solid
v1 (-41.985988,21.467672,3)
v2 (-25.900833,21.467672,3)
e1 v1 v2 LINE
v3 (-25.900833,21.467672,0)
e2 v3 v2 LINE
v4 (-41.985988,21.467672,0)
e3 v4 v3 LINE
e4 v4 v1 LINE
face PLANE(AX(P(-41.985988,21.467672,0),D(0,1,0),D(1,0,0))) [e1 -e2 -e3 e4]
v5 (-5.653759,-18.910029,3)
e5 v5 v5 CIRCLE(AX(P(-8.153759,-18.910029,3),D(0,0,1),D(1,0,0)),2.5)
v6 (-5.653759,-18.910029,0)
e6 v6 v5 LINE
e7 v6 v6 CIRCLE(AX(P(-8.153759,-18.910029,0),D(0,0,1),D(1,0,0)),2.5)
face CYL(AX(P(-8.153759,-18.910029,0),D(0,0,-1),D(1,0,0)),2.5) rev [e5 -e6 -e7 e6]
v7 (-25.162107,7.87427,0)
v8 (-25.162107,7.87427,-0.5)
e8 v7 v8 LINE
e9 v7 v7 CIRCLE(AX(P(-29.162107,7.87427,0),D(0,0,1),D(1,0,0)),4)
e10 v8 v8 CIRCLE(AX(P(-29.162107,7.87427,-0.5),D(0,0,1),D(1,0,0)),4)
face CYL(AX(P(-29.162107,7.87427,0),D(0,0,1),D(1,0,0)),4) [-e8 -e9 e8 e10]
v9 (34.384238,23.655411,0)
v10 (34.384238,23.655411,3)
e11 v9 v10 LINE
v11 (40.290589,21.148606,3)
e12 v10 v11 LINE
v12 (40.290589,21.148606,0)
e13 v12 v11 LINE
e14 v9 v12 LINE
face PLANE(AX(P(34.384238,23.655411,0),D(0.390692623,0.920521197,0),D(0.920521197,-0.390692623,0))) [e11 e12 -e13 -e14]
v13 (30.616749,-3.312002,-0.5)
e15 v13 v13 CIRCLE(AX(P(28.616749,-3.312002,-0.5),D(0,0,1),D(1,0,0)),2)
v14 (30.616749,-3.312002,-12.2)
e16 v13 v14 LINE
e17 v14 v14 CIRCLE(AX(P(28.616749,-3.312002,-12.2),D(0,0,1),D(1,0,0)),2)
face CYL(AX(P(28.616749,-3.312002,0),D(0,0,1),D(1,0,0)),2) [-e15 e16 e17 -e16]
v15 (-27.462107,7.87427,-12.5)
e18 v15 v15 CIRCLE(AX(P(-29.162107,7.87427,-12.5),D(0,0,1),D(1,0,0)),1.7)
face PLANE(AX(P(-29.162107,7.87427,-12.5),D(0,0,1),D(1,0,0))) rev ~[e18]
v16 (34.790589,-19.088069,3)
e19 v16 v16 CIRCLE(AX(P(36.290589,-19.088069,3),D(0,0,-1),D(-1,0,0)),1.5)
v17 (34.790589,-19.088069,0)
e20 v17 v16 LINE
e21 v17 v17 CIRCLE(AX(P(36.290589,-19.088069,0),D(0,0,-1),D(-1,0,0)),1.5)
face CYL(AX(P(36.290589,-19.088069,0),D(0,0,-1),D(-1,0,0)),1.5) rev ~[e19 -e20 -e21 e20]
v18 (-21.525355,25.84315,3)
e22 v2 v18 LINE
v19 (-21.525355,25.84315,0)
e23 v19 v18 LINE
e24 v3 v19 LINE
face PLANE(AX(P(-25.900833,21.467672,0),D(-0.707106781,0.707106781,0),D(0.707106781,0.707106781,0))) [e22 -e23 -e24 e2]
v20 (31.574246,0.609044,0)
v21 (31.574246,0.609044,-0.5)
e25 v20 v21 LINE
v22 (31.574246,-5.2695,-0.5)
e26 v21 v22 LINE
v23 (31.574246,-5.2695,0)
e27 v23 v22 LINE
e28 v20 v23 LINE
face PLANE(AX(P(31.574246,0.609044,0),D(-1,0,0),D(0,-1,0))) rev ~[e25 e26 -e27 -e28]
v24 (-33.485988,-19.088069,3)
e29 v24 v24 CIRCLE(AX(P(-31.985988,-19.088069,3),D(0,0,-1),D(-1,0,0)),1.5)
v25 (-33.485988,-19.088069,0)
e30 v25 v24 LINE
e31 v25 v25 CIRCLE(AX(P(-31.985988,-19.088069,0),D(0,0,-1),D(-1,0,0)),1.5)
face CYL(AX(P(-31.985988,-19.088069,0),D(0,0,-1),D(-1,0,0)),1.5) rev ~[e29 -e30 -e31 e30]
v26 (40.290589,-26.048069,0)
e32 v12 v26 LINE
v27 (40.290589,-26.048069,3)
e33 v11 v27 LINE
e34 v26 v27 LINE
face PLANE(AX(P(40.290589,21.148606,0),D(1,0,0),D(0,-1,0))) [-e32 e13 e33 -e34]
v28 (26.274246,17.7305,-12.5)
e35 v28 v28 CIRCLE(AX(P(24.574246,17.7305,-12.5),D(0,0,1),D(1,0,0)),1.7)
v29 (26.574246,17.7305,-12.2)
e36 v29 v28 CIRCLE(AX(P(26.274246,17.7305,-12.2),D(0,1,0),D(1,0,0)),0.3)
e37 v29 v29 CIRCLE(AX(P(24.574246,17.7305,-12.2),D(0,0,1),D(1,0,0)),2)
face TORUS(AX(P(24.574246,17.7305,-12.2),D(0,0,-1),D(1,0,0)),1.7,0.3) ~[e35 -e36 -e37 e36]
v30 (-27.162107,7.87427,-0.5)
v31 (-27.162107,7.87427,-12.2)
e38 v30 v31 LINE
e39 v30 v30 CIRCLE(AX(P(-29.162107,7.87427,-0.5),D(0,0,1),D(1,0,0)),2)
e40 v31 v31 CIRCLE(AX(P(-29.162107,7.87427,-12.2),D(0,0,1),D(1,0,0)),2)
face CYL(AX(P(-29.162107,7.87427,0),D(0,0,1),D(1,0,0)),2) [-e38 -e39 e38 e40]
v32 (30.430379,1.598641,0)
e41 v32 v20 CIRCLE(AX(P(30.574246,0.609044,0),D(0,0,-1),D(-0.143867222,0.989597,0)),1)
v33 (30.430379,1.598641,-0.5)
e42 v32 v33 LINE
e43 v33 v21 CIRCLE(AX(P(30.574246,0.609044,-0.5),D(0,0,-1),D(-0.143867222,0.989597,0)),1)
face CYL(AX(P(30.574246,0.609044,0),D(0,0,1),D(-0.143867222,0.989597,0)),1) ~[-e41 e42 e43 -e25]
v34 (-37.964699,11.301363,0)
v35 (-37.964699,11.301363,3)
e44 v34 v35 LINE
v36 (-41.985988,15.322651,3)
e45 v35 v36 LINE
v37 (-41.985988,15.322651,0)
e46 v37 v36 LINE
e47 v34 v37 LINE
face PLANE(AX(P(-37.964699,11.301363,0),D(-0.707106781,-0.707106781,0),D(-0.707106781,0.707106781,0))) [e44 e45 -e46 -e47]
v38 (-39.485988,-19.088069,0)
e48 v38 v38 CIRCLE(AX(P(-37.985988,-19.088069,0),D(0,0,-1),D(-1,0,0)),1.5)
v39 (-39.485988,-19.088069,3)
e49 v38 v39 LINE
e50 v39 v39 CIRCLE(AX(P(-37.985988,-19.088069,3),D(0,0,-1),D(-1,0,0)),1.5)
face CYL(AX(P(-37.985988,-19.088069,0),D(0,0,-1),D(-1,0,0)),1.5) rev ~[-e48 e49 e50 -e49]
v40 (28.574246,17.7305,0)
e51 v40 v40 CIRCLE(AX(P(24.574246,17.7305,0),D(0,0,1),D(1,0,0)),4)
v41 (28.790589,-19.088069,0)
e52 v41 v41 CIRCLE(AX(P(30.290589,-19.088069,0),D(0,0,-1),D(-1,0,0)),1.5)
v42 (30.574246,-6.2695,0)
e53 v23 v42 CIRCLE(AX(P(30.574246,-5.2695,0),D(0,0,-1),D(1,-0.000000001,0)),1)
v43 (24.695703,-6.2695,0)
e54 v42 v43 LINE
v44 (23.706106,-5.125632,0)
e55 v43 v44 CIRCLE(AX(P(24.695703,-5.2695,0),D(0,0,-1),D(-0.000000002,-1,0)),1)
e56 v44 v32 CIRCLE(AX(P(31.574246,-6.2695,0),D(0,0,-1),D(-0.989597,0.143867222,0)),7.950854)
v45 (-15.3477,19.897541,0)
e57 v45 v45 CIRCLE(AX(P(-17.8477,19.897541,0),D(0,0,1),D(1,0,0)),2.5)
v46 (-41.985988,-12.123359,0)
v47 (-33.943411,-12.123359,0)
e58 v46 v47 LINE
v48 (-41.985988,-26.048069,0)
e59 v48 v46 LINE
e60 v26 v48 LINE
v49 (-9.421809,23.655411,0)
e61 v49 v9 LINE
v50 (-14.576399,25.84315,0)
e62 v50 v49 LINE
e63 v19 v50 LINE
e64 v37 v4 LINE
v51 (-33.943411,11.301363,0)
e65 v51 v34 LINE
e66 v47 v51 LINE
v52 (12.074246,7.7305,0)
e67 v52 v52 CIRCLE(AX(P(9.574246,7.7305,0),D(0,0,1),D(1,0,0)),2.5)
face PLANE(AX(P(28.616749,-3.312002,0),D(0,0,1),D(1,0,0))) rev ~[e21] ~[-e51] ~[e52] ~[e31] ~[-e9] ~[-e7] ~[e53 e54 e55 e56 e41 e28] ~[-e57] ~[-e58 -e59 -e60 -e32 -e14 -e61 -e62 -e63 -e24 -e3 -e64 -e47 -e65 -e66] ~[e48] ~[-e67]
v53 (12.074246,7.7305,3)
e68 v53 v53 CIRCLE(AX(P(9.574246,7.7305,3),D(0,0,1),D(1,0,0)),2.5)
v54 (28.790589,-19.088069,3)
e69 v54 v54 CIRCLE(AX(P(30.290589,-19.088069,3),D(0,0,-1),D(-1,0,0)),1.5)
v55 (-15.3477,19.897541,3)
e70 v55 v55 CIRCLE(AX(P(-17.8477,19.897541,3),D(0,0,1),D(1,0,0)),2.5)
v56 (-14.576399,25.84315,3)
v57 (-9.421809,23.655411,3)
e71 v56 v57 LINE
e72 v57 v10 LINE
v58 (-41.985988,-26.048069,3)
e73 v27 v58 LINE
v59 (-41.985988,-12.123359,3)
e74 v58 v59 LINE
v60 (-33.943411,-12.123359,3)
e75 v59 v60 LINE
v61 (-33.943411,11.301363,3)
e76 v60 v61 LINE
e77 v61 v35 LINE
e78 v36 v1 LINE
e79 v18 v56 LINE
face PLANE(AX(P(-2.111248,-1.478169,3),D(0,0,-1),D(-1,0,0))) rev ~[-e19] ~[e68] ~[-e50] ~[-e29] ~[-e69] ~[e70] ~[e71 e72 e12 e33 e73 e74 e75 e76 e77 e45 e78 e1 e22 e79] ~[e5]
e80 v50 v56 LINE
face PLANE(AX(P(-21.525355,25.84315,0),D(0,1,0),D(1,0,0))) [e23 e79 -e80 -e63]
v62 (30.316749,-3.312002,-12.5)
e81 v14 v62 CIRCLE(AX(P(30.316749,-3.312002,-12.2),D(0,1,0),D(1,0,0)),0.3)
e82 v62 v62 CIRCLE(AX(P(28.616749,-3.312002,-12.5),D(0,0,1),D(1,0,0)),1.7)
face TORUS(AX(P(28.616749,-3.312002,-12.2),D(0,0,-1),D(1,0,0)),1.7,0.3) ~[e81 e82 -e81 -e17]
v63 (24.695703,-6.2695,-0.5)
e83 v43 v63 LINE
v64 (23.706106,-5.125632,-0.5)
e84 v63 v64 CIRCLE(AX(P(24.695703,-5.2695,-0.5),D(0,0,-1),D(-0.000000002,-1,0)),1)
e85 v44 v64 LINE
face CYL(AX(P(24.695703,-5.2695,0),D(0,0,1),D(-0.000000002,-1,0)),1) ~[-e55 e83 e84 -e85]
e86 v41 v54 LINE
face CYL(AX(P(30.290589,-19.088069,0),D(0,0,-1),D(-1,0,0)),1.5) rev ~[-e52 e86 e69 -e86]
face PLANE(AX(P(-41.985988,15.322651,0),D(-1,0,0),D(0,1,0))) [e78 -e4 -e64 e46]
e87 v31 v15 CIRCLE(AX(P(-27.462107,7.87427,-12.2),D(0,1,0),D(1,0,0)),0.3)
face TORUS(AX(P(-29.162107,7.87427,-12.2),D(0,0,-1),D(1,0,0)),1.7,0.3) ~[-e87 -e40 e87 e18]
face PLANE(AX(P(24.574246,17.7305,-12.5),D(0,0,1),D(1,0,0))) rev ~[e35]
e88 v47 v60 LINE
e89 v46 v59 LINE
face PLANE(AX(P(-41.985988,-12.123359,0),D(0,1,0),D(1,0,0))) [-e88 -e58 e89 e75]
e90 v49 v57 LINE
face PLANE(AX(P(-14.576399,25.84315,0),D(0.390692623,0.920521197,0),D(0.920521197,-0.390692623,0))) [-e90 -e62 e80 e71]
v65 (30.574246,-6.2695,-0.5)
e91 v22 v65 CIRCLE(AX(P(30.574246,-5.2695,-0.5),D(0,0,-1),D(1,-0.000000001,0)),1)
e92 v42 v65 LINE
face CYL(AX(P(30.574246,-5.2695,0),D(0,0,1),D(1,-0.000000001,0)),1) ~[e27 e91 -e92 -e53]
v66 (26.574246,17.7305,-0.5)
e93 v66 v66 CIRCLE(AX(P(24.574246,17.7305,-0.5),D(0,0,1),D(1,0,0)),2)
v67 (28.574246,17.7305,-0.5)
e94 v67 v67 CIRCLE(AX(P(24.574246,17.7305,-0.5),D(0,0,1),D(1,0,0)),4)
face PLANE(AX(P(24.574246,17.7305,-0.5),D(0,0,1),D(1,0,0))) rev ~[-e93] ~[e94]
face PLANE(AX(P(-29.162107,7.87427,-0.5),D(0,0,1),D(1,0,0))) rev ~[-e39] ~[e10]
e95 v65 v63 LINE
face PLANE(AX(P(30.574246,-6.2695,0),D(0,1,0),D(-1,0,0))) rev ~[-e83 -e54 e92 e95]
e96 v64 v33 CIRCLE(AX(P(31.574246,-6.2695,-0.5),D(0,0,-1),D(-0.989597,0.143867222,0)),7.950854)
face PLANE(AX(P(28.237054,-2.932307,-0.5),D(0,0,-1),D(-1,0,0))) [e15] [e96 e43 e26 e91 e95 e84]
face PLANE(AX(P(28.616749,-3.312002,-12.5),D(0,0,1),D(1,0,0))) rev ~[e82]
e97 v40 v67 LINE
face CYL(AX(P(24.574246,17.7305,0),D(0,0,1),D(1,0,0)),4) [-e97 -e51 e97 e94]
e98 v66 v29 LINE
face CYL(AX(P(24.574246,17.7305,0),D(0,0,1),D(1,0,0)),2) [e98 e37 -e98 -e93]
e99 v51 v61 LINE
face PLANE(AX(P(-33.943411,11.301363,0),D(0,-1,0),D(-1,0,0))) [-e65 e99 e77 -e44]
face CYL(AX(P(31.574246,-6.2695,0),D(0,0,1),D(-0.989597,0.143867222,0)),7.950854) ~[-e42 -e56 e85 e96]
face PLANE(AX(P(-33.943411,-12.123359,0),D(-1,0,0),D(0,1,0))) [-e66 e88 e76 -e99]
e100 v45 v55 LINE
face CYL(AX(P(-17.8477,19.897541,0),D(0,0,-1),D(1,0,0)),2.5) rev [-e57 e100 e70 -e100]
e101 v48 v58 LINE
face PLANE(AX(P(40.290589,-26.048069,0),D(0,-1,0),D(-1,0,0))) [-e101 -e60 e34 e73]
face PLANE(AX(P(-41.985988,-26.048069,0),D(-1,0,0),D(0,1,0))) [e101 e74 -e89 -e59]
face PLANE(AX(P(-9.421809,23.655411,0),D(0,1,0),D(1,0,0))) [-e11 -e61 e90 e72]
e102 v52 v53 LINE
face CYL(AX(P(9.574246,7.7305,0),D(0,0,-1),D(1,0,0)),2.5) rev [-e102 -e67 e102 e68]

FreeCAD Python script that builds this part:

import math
import FreeCAD as App
import Part
import Sketcher
from FreeCAD import Vector
Q = App.Units.Quantity


def edges_at(feature, points):
    """Names of the edges that pass closest to the given points."""
    edges = feature.Shape.Edges
    near = lambda p: min(range(len(edges)), key=lambda i: edges[i].distToShape(Part.Vertex(*p))[0])
    return sorted({f"Edge{near(p) + 1}" for p in points})

doc = App.newDocument("Part")
body = doc.addObject("PartDesign::Body", "Body")

# Sketch on XY plane
sketch1 = doc.addObject("Sketcher::SketchObject", "Sketch")
body.addObject(sketch1)
sketch1.AttachmentSupport = (doc.XY_Plane, [""])
sketch1.MapMode = "FlatFace"
sketch1.addGeometry(Part.LineSegment(Vector(-42, 21.5, 0), Vector(-42, 15.3, 0)), False)
sketch1.addGeometry(Part.LineSegment(Vector(-42, 15.3, 0), Vector(-38, 11.3, 0)), False)
sketch1.addGeometry(Part.LineSegment(Vector(-38, 11.3, 0), Vector(-33.9, 11.3, 0)), False)
sketch1.addGeometry(Part.LineSegment(Vector(-33.9, 11.3, 0), Vector(-33.9, -12.1, 0)), False)
sketch1.addGeometry(Part.LineSegment(Vector(-33.9, -12.1, 0), Vector(-42, -12.1, 0)), False)
sketch1.addGeometry(Part.LineSegment(Vector(-42, -12.1, 0), Vector(-42, -26, 0)), False)
sketch1.addGeometry(Part.LineSegment(Vector(-42, -26, 0), Vector(40.3, -26, 0)), False)
sketch1.addGeometry(Part.LineSegment(Vector(40.3, -26, 0), Vector(40.3, 21.1, 0)), False)
sketch1.addGeometry(Part.LineSegment(Vector(40.3, 21.1, 0), Vector(34.4, 23.7, 0)), False)
sketch1.addGeometry(Part.LineSegment(Vector(34.4, 23.7, 0), Vector(-9.4, 23.7, 0)), False)
sketch1.addGeometry(Part.LineSegment(Vector(-9.4, 23.7, 0), Vector(-14.6, 25.8, 0)), False)
sketch1.addGeometry(Part.LineSegment(Vector(-14.6, 25.8, 0), Vector(-21.5, 25.8, 0)), False)
sketch1.addGeometry(Part.LineSegment(Vector(-21.5, 25.8, 0), Vector(-25.9, 21.5, 0)), False)
sketch1.addGeometry(Part.LineSegment(Vector(-25.9, 21.5, 0), Vector(-42, 21.5, 0)), False)
sketch1.addGeometry(Part.Circle(Vector(-8.2, -18.9, 0), Vector(0, 0, 1), 2.5), False)
sketch1.addGeometry(Part.Circle(Vector(9.6, 7.7, 0), Vector(0, 0, 1), 2.5), False)
sketch1.addGeometry(Part.Circle(Vector(-17.8, 19.9, 0), Vector(0, 0, 1), 2.5), False)
sketch1.addConstraint(Sketcher.Constraint("Coincident", 0, 2, 1, 1))
sketch1.addConstraint(Sketcher.Constraint("Coincident", 1, 2, 2, 1))
sketch1.addConstraint(Sketcher.Constraint("Coincident", 2, 2, 3, 1))
sketch1.addConstraint(Sketcher.Constraint("Coincident", 3, 2, 4, 1))
sketch1.addConstraint(Sketcher.Constraint("Coincident", 4, 2, 5, 1))
sketch1.addConstraint(Sketcher.Constraint("Coincident", 5, 2, 6, 1))
sketch1.addConstraint(Sketcher.Constraint("Coincident", 6, 2, 7, 1))
sketch1.addConstraint(Sketcher.Constraint("Coincident", 7, 2, 8, 1))
sketch1.addConstraint(Sketcher.Constraint("Coincident", 8, 2, 9, 1))
sketch1.addConstraint(Sketcher.Constraint("Coincident", 9, 2, 10, 1))
sketch1.addConstraint(Sketcher.Constraint("Coincident", 10, 2, 11, 1))
sketch1.addConstraint(Sketcher.Constraint("Coincident", 11, 2, 12, 1))
sketch1.addConstraint(Sketcher.Constraint("Coincident", 12, 2, 13, 1))
sketch1.addConstraint(Sketcher.Constraint("Coincident", 13, 2, 0, 1))
sketch1.addConstraint(Sketcher.Constraint("Vertical", 0))
sketch1.addConstraint(Sketcher.Constraint("Horizontal", 2))
sketch1.addConstraint(Sketcher.Constraint("Vertical", 3))
sketch1.addConstraint(Sketcher.Constraint("Horizontal", 4))
sketch1.addConstraint(Sketcher.Constraint("Vertical", 5))
sketch1.addConstraint(Sketcher.Constraint("Horizontal", 6))
sketch1.addConstraint(Sketcher.Constraint("Vertical", 7))
sketch1.addConstraint(Sketcher.Constraint("Horizontal", 9))
sketch1.addConstraint(Sketcher.Constraint("Horizontal", 11))
sketch1.addConstraint(Sketcher.Constraint("Horizontal", 13))
sketch1.addConstraint(Sketcher.Constraint("Equal", 14, 15))
sketch1.addConstraint(Sketcher.Constraint("Equal", 15, 16))
sketch1.addConstraint(Sketcher.Constraint("Parallel", 8, 10))
sketch1.addConstraint(Sketcher.Constraint("Perpendicular", 1, 12))
sketch1.addConstraint(Sketcher.Constraint("Vertical", 0, 2, 4, 2))
sketch1.addConstraint(Sketcher.Constraint("Diameter", 14, 5.0))
sketch1.addConstraint(Sketcher.Constraint("Angle", 1, Q("-45 deg")))
sketch1.addConstraint(Sketcher.Constraint("DistanceX", 1, 2, 16, 3, 20.117))
sketch1.addConstraint(Sketcher.Constraint("DistanceX", 3, 2, 6, 2, 74.233999))
sketch1.addConstraint(Sketcher.Constraint("DistanceX", 2, 1, 2, 2, 4.021289))
sketch1.addConstraint(Sketcher.Constraint("DistanceY", 0, 2, 0, 1, 6.145021))
sketch1.addConstraint(Sketcher.Constraint("DistanceY", 3, 2, 3, 1, 23.424721))
sketch1.addConstraint(Sketcher.Constraint("DistanceY", 5, 2, 5, 1, 13.92471))
sketch1.addConstraint(Sketcher.Constraint("DistanceY", -1, 1, 15, 3, 7.7305))
sketch1.addConstraint(Sketcher.Constraint("DistanceX", 16, 3, -1, 1, 17.8477))
sketch1.addConstraint(Sketcher.Constraint("DistanceX", 10, 2, -1, 1, 14.576399))
sketch1.addConstraint(Sketcher.Constraint("DistanceY", 3, 2, 16, 3, 32.0209))
sketch1.addConstraint(Sketcher.Constraint("DistanceX", 2, 2, 9, 2, 24.521602))
sketch1.addConstraint(Sketcher.Constraint("DistanceY", 0, 2, 10, 2, 10.520499))
sketch1.addConstraint(Sketcher.Constraint("Distance", 1, 5.686961))
sketch1.addConstraint(Sketcher.Constraint("Distance", 8, 6.416311))
sketch1.addConstraint(Sketcher.Constraint("DistanceX", 9, 2, 9, 1, 43.806047))
sketch1.addConstraint(Sketcher.Constraint("DistanceX", 11, 2, 11, 1, 6.948956))
sketch1.addConstraint(Sketcher.Constraint("DistanceX", 14, 3, -1, 1, 8.153759))
sketch1.addConstraint(Sketcher.Constraint("DistanceY", 14, 3, -1, 1, 18.910029))
sketch1.addConstraint(Sketcher.Constraint("DistanceY", -1, 1, 16, 3, 19.897541))
sketch1.addConstraint(Sketcher.Constraint("DistanceX", 15, 3, 8, 2, 24.809992))
pad1 = doc.addObject("PartDesign::Pad", "Pad")
body.addObject(pad1)
pad1.Profile = sketch1
pad1.Length = 3

# Sketch on XY plane
sketch2 = doc.addObject("Sketcher::SketchObject", "Sketch001")
body.addObject(sketch2)
sketch2.AttachmentSupport = (doc.XY_Plane, [""])
sketch2.MapMode = "FlatFace"
sketch2.addGeometry(Part.Circle(Vector(-29.2, 7.9, 0), Vector(0, 0, 1), 4), False)
sketch2.addGeometry(Part.Circle(Vector(-29.2, 7.9, 0), Vector(0, 0, 1), 2), False)
sketch2.addGeometry(Part.Circle(Vector(24.6, 17.7, 0), Vector(0, 0, 1), 4), False)
sketch2.addGeometry(Part.Circle(Vector(24.6, 17.7, 0), Vector(0, 0, 1), 2), False)
sketch2.addGeometry(Part.ArcOfCircle(Part.Circle(Vector(24.7, -5.3, 0), Vector(0, 0, 1), 1), math.radians(172), math.radians(270)), False)
sketch2.addGeometry(Part.LineSegment(Vector(24.7, -6.3, 0), Vector(30.6, -6.3, 0)), False)
sketch2.addGeometry(Part.ArcOfCircle(Part.Circle(Vector(30.6, -5.3, 0), Vector(0, 0, 1), 1), math.radians(-90), math.radians(0)), False)
sketch2.addGeometry(Part.LineSegment(Vector(31.6, -5.3, 0), Vector(31.6, 0.6, 0)), False)
sketch2.addGeometry(Part.ArcOfCircle(Part.Circle(Vector(30.6, 0.6, 0), Vector(0, 0, 1), 1), math.radians(0), math.radians(98)), False)
sketch2.addGeometry(Part.ArcOfCircle(Part.Circle(Vector(31.6, -6.3, 0), Vector(0, 0, 1), 8), math.radians(98), math.radians(172)), False)
sketch2.addGeometry(Part.Circle(Vector(28.6, -3.3, 0), Vector(0, 0, 1), 2), False)
sketch2.addConstraint(Sketcher.Constraint("Tangent", 4, 2, 5, 1))
sketch2.addConstraint(Sketcher.Constraint("Tangent", 5, 2, 6, 1))
sketch2.addConstraint(Sketcher.Constraint("Tangent", 6, 2, 7, 1))
sketch2.addConstraint(Sketcher.Constraint("Tangent", 7, 2, 8, 1))
sketch2.addConstraint(Sketcher.Constraint("Tangent", 8, 2, 9, 1))
sketch2.addConstraint(Sketcher.Constraint("Tangent", 9, 2, 4, 1))
sketch2.addConstraint(Sketcher.Constraint("Horizontal", 5))
sketch2.addConstraint(Sketcher.Constraint("Vertical", 7))
sketch2.addConstraint(Sketcher.Constraint("Coincident", 1, 3, 0, 3))
sketch2.addConstraint(Sketcher.Constraint("Coincident", 3, 3, 2, 3))
sketch2.addConstraint(Sketcher.Constraint("Equal", 0, 2))
sketch2.addConstraint(Sketcher.Constraint("Equal", 1, 3))
sketch2.addConstraint(Sketcher.Constraint("Equal", 4, 6))
sketch2.addConstraint(Sketcher.Constraint("Equal", 6, 8))
sketch2.addConstraint(Sketcher.Constraint("Equal", 3, 10))
sketch2.addConstraint(Sketcher.Constraint("Horizontal", 9, 3, 4, 2))
sketch2.addConstraint(Sketcher.Constraint("Vertical", 9, 3, 6, 2))
sketch2.addConstraint(Sketcher.Constraint("Diameter", 0, 8.0))
sketch2.addConstraint(Sketcher.Constraint("Diameter", 1, 4.0))
sketch2.addConstraint(Sketcher.Constraint("Radius", 4, 1.0))
sketch2.addConstraint(Sketcher.Constraint("DistanceY", 4, 3, 2, 3, 23.0))
sketch2.addConstraint(Sketcher.Constraint("DistanceX", 2, 3, 6, 3, 6.0))
sketch2.addConstraint(Sketcher.Constraint("DistanceY", 10, 3, -1, 1, 3.312002))
sketch2.addConstraint(Sketcher.Constraint("Radius", 9, 7.950854))
sketch2.addConstraint(Sketcher.Constraint("DistanceY", -1, 1, 2, 3, 17.7305))
sketch2.addConstraint(Sketcher.Constraint("DistanceY", -1, 1, 0, 3, 7.87427))
sketch2.addConstraint(Sketcher.Constraint("DistanceX", -1, 1, 10, 3, 28.616749))
sketch2.addConstraint(Sketcher.Constraint("DistanceX", -1, 1, 8, 2, 30.430379))
sketch2.addConstraint(Sketcher.Constraint("DistanceX", 0, 3, 4, 3, 53.85781))
pad2 = doc.addObject("PartDesign::Pad", "Pad001")
body.addObject(pad2)
pad2.Profile = sketch2
pad2.Length = 0.5
pad2.Reversed = True

# Sketch on XY plane
sketch3 = doc.addObject("Sketcher::SketchObject", "Sketch002")
body.addObject(sketch3)
sketch3.AttachmentSupport = (doc.XY_Plane, [""])
sketch3.MapMode = "FlatFace"
sketch3.addGeometry(Part.Circle(Vector(28.6, -3.3, 0), Vector(0, 0, 1), 2), False)
sketch3.addGeometry(Part.Circle(Vector(24.6, 17.7, 0), Vector(0, 0, 1), 2), False)
sketch3.addGeometry(Part.Circle(Vector(-29.2, 7.9, 0), Vector(0, 0, 1), 2), False)
sketch3.addConstraint(Sketcher.Constraint("Equal", 0, 1))
sketch3.addConstraint(Sketcher.Constraint("Equal", 1, 2))
sketch3.addConstraint(Sketcher.Constraint("Diameter", 0, 4.0))
sketch3.addConstraint(Sketcher.Constraint("DistanceY", 0, 3, -1, 1, 3.312002))
sketch3.addConstraint(Sketcher.Constraint("DistanceY", -1, 1, 1, 3, 17.7305))
sketch3.addConstraint(Sketcher.Constraint("DistanceX", -1, 1, 0, 3, 28.616749))
sketch3.addConstraint(Sketcher.Constraint("DistanceY", -1, 1, 2, 3, 7.87427))
sketch3.addConstraint(Sketcher.Constraint("DistanceX", -1, 1, 1, 3, 24.574246))
sketch3.addConstraint(Sketcher.Constraint("DistanceX", 2, 3, -1, 1, 29.162107))
pad3 = doc.addObject("PartDesign::Pad", "Pad002")
body.addObject(pad3)
pad3.Profile = sketch3
pad3.Length = 12.5
pad3.Reversed = True
doc.recompute()

fillet = doc.addObject("PartDesign::Fillet", "Fillet")
body.addObject(fillet)
fillet.Base = (pad3, edges_at(pad3, [(26.617, -3.312, -12.5), (22.574, 17.731, -12.5), (-31.162, 7.874, -12.5)]))
fillet.Radius = 0.3

# Sketch on XY plane
sketch4 = doc.addObject("Sketcher::SketchObject", "Sketch003")
body.addObject(sketch4)
sketch4.AttachmentSupport = (doc.XY_Plane, [""])
sketch4.MapMode = "FlatFace"
sketch4.addGeometry(Part.Circle(Vector(36.3, -19.1, 0), Vector(0, 0, 1), 1.5), False)
sketch4.addConstraint(Sketcher.Constraint("Diameter", 0, 3.0))
sketch4.addConstraint(Sketcher.Constraint("DistanceX", -1, 1, 0, 3, 36.290589))
sketch4.addConstraint(Sketcher.Constraint("DistanceY", 0, 3, -1, 1, 19.088069))
pocket1 = doc.addObject("PartDesign::Pocket", "Pocket")
body.addObject(pocket1)
pocket1.Profile = sketch4
pocket1.Type = "UpToFirst"
pocket1.Reversed = True

# Sketch on XY plane
sketch5 = doc.addObject("Sketcher::SketchObject", "Sketch004")
body.addObject(sketch5)
sketch5.AttachmentSupport = (doc.XY_Plane, [""])
sketch5.MapMode = "FlatFace"
sketch5.addGeometry(Part.Circle(Vector(30.3, -19.1, 0), Vector(0, 0, 1), 1.5), False)
sketch5.addConstraint(Sketcher.Constraint("Diameter", 0, 3.0))
sketch5.addConstraint(Sketcher.Constraint("DistanceX", -1, 1, 0, 3, 30.290589))
sketch5.addConstraint(Sketcher.Constraint("DistanceY", 0, 3, -1, 1, 19.088069))
pocket2 = doc.addObject("PartDesign::Pocket", "Pocket001")
body.addObject(pocket2)
pocket2.Profile = sketch5
pocket2.Type = "UpToFirst"
pocket2.Reversed = True

# Sketch on XY plane
sketch6 = doc.addObject("Sketcher::SketchObject", "Sketch005")
body.addObject(sketch6)
sketch6.AttachmentSupport = (doc.XY_Plane, [""])
sketch6.MapMode = "FlatFace"
sketch6.addGeometry(Part.Circle(Vector(-32, -19.1, 0), Vector(0, 0, 1), 1.5), False)
sketch6.addConstraint(Sketcher.Constraint("Diameter", 0, 3.0))
sketch6.addConstraint(Sketcher.Constraint("DistanceY", 0, 3, -1, 1, 19.088069))
sketch6.addConstraint(Sketcher.Constraint("DistanceX", 0, 3, -1, 1, 31.985988))
pocket3 = doc.addObject("PartDesign::Pocket", "Pocket002")
body.addObject(pocket3)
pocket3.Profile = sketch6
pocket3.Type = "UpToFirst"
pocket3.Reversed = True

# Sketch on XY plane
sketch7 = doc.addObject("Sketcher::SketchObject", "Sketch006")
body.addObject(sketch7)
sketch7.AttachmentSupport = (doc.XY_Plane, [""])
sketch7.MapMode = "FlatFace"
sketch7.addGeometry(Part.Circle(Vector(-38, -19.1, 0), Vector(0, 0, 1), 1.5), False)
sketch7.addConstraint(Sketcher.Constraint("Diameter", 0, 3.0))
sketch7.addConstraint(Sketcher.Constraint("DistanceY", 0, 3, -1, 1, 19.088069))
sketch7.addConstraint(Sketcher.Constraint("DistanceX", 0, 3, -1, 1, 37.985988))
pocket4 = doc.addObject("PartDesign::Pocket", "Pocket003")
body.addObject(pocket4)
pocket4.Profile = sketch7
pocket4.Type = "UpToFirst"
pocket4.Reversed = True

doc.recompute()
